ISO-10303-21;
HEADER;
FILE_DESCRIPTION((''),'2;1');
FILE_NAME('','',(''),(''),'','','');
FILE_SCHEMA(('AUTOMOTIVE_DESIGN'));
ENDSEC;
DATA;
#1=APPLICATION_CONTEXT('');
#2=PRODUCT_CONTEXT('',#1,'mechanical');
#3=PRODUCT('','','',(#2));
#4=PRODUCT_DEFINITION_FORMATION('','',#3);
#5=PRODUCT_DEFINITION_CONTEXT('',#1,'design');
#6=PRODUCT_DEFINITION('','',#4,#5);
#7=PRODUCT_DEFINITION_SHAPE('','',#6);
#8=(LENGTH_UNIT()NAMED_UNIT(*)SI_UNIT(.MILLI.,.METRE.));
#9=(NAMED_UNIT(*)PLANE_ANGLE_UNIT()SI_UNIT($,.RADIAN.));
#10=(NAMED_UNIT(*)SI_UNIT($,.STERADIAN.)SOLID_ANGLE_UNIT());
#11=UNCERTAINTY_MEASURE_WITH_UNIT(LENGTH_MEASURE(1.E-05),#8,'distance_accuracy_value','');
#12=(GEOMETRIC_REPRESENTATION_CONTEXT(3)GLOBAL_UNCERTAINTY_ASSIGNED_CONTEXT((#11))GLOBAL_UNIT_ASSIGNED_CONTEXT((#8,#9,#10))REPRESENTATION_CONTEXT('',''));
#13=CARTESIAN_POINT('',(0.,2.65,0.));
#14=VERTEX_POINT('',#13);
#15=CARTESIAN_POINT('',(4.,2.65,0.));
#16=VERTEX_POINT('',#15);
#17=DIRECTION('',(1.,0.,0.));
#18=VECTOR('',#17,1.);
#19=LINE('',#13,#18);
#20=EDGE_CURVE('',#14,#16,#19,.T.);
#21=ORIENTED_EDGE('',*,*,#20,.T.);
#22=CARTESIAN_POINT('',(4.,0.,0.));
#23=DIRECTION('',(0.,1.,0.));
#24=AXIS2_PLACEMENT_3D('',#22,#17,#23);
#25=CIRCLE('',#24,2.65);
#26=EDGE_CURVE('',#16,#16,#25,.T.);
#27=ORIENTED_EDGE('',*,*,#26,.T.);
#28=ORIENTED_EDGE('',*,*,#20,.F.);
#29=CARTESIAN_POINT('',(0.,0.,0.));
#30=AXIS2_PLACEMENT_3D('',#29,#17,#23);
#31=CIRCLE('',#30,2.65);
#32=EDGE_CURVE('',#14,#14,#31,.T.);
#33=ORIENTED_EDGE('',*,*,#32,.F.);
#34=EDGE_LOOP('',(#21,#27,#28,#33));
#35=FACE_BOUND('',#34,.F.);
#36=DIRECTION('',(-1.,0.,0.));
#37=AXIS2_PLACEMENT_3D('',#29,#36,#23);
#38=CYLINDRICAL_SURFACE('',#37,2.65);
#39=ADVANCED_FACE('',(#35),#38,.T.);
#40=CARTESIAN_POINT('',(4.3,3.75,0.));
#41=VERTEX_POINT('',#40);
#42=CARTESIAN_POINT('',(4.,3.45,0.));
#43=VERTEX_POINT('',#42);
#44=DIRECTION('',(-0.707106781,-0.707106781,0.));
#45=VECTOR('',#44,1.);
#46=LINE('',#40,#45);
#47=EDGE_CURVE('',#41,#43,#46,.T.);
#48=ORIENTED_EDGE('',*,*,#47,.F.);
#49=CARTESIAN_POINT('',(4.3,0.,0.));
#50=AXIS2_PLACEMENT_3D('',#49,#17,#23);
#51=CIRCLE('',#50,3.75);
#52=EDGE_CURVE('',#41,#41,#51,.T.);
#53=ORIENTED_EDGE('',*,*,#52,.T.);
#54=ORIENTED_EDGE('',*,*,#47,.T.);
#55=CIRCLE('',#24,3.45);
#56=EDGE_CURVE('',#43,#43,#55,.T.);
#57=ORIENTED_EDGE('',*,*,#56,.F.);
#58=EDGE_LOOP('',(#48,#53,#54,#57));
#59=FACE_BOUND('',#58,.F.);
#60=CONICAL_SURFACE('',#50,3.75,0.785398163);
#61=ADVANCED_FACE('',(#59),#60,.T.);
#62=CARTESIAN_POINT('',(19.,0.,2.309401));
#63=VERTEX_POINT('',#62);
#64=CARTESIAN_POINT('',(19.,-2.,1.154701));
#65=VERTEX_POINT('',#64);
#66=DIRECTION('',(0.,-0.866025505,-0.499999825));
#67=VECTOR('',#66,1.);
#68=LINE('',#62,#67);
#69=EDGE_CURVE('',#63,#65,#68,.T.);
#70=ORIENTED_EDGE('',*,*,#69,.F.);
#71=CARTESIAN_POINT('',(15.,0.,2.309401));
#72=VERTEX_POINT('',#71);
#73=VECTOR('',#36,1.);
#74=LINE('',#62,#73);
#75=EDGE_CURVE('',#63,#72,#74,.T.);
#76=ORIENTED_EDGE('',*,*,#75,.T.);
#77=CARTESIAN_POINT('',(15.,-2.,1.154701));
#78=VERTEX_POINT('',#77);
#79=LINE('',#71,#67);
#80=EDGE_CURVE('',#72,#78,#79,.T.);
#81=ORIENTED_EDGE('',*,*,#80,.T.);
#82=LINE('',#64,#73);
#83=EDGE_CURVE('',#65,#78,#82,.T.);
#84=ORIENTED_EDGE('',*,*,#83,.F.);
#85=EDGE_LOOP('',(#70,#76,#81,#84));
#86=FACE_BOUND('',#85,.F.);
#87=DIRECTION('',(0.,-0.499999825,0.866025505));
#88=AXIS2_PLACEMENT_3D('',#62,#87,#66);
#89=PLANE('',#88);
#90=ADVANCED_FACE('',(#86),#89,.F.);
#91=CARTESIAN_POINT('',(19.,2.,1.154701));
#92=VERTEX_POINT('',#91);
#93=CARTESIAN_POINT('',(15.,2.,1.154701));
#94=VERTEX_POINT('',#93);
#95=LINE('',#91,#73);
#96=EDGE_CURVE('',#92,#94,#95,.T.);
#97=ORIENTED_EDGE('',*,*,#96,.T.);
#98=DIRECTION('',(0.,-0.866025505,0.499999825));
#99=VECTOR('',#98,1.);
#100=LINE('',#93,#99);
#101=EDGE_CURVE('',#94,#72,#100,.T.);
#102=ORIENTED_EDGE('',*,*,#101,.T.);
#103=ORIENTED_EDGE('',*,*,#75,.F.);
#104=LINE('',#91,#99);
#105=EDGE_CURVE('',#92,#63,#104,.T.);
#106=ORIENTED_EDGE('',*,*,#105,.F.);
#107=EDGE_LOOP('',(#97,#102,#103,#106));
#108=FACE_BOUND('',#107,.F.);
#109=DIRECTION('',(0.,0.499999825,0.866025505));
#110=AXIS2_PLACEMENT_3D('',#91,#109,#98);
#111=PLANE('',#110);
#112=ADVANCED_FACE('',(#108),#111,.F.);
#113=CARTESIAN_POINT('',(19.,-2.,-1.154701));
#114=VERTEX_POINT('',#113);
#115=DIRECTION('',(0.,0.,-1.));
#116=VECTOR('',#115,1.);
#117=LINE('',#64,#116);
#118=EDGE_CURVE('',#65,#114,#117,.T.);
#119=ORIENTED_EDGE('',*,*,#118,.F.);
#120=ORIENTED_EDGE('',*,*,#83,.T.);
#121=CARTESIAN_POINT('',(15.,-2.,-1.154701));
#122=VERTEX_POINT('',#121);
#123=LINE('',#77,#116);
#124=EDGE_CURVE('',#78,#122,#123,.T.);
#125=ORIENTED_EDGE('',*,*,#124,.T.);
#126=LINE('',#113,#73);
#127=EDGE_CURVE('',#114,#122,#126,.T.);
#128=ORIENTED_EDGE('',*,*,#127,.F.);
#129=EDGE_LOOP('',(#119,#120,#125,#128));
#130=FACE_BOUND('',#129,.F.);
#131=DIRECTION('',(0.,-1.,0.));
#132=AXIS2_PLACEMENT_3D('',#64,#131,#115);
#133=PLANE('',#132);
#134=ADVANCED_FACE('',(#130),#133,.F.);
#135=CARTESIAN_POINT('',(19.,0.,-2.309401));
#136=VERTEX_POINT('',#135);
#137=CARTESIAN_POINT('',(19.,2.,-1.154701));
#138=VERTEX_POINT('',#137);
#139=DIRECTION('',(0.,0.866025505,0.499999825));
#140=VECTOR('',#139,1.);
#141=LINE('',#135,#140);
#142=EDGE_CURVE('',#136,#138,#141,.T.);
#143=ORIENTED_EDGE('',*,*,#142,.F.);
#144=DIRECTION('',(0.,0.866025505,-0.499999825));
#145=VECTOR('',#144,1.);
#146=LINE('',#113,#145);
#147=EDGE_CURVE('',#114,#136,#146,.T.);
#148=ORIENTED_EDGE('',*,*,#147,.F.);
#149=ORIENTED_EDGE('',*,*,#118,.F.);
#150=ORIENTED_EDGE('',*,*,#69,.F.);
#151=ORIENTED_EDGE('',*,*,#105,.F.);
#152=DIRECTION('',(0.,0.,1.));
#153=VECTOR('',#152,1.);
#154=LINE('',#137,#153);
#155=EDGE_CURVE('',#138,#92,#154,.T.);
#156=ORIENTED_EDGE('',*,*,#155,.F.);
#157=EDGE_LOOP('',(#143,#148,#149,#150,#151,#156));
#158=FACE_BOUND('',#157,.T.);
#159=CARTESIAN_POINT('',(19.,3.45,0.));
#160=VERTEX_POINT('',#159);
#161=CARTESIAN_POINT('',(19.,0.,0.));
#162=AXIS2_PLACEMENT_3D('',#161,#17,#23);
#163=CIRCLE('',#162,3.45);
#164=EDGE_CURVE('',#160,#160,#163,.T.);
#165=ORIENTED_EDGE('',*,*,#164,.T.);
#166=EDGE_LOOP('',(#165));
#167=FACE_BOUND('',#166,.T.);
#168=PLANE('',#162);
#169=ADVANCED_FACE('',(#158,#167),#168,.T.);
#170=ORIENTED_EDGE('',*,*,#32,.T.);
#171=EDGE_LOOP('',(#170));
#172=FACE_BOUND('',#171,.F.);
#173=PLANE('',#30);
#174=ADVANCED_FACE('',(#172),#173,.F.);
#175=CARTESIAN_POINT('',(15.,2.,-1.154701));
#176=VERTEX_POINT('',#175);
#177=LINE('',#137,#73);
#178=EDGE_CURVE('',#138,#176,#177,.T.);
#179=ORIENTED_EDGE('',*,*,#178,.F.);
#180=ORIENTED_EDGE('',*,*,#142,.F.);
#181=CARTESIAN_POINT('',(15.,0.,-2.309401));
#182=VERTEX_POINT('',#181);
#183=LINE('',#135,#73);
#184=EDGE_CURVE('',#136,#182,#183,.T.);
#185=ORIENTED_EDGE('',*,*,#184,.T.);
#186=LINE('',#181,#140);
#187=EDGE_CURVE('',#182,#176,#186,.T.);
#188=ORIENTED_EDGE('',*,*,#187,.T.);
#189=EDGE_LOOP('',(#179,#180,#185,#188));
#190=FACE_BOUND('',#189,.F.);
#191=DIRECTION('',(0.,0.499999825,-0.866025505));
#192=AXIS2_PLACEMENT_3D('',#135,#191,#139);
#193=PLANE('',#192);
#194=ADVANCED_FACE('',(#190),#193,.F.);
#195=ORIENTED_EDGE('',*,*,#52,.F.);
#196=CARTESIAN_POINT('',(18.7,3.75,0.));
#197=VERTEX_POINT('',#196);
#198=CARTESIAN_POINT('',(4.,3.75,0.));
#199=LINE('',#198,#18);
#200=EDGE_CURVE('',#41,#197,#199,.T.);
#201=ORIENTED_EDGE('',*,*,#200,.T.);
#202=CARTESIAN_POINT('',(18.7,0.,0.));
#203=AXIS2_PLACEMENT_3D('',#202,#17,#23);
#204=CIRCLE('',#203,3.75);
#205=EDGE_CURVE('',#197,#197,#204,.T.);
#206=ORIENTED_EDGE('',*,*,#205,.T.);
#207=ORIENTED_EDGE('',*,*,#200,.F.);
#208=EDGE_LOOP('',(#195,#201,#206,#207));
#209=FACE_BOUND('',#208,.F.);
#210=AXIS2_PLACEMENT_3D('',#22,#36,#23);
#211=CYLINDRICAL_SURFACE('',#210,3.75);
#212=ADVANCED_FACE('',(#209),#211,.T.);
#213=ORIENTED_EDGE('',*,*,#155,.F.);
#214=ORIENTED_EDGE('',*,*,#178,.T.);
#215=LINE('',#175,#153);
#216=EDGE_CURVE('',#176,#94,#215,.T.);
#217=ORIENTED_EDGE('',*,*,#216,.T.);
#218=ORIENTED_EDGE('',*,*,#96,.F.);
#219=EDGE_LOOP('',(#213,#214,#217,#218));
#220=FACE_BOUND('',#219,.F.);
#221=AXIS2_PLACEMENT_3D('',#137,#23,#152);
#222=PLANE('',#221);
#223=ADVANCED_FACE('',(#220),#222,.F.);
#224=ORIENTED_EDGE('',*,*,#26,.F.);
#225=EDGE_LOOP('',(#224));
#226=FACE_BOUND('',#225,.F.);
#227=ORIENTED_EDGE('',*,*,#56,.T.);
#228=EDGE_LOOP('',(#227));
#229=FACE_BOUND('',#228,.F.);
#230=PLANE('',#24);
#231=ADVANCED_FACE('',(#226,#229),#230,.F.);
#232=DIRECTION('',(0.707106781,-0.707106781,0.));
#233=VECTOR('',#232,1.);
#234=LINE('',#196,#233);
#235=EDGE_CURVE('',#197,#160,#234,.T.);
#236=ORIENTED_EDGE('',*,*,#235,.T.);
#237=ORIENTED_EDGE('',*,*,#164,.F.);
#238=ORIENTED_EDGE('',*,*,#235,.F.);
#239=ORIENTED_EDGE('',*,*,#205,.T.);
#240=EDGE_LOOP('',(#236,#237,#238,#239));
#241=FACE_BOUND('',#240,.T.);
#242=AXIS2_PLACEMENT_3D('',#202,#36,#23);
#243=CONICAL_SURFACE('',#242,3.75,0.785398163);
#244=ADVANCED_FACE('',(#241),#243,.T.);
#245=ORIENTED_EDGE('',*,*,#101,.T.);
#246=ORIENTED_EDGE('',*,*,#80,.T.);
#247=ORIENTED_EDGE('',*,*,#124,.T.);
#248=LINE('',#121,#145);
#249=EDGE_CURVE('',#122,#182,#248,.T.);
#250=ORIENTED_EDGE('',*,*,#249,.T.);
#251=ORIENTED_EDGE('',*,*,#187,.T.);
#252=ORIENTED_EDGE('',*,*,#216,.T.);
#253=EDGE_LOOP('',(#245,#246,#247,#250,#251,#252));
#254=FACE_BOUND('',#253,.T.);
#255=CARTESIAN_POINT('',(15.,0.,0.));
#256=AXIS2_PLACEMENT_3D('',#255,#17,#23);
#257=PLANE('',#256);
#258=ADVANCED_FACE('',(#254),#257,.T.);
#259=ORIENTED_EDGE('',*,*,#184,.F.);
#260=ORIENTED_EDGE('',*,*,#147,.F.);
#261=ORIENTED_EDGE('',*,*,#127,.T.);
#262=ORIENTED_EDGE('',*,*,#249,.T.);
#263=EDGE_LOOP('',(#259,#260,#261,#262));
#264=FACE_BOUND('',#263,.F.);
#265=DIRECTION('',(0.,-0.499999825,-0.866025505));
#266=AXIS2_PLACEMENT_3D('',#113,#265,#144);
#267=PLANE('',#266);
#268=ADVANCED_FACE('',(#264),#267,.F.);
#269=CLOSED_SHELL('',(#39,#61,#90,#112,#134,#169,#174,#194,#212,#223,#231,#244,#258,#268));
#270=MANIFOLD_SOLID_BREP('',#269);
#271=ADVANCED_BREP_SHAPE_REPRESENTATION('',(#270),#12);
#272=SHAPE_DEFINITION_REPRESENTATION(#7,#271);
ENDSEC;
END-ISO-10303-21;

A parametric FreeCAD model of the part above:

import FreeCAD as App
import Part
import Sketcher

V = App.Vector
Q = App.Units.Quantity


def edges_at(feature, points):
    """Names of the edges that pass closest to the given points."""
    edges = feature.Shape.Edges
    near = lambda p: min(range(len(edges)), key=lambda i: edges[i].distToShape(Part.Vertex(*p))[0])
    return sorted({f"Edge{near(p) + 1}" for p in points})

doc = App.newDocument("Part")
body = doc.addObject("PartDesign::Body", "Body")

sketch1 = doc.addObject("Sketcher::SketchObject", "Sketch")
body.addObject(sketch1)
sketch1.AttachmentSupport = (doc.YZ_Plane, [""])
sketch1.MapMode = "FlatFace"
sketch1.addGeometry(Part.Circle(V(0, 0, 0), V(0, 0, 1), 2.6), False)
sketch1.addConstraint(Sketcher.Constraint("Coincident", 0, 3, -1, 1))
sketch1.addConstraint(Sketcher.Constraint("Diameter", 0, Q("5.3 mm")))
pad1 = doc.addObject("PartDesign::Pad", "Pad")
body.addObject(pad1)
pad1.Profile = sketch1
pad1.Length = 4

sketch2 = doc.addObject("Sketcher::SketchObject", "Sketch001")
body.addObject(sketch2)
sketch2.AttachmentSupport = (doc.YZ_Plane, [""])
sketch2.MapMode = "FlatFace"
sketch2.AttachmentOffset = App.Placement(V(0, 0, 4), App.Rotation())
sketch2.addGeometry(Part.Circle(V(0, 0, 0), V(0, 0, 1), 3.8), False)
sketch2.addConstraint(Sketcher.Constraint("Coincident", 0, 3, -1, 1))
sketch2.addConstraint(Sketcher.Constraint("Diameter", 0, Q("7.5 mm")))
pad2 = doc.addObject("PartDesign::Pad", "Pad001")
body.addObject(pad2)
pad2.Profile = sketch2
pad2.Length = 15

sketch3 = doc.addObject("Sketcher::SketchObject", "Sketch002")
body.addObject(sketch3)
sketch3.AttachmentSupport = (doc.YZ_Plane, [""])
sketch3.MapMode = "FlatFace"
sketch3.AttachmentOffset = App.Placement(V(0, 0, 19), App.Rotation())
sketch3.addGeometry(Part.LineSegment(V(2, -1.2, 0), V(2, 1.2, 0)), False)
sketch3.addGeometry(Part.LineSegment(V(2, 1.2, 0), V(0, 2.3, 0)), False)
sketch3.addGeometry(Part.LineSegment(V(0, 2.3, 0), V(-2, 1.2, 0)), False)
sketch3.addGeometry(Part.LineSegment(V(-2, 1.2, 0), V(-2, -1.2, 0)), False)
sketch3.addGeometry(Part.LineSegment(V(-2, -1.2, 0), V(0, -2.3, 0)), False)
sketch3.addGeometry(Part.LineSegment(V(0, -2.3, 0), V(2, -1.2, 0)), False)
sketch3.addConstraint(Sketcher.Constraint("Coincident", 0, 2, 1, 1))
sketch3.addConstraint(Sketcher.Constraint("Coincident", 1, 2, 2, 1))
sketch3.addConstraint(Sketcher.Constraint("Coincident", 2, 2, 3, 1))
sketch3.addConstraint(Sketcher.Constraint("Coincident", 3, 2, 4, 1))
sketch3.addConstraint(Sketcher.Constraint("Coincident", 4, 2, 5, 1))
sketch3.addConstraint(Sketcher.Constraint("Coincident", 5, 2, 0, 1))
sketch3.addConstraint(Sketcher.Constraint("Vertical", 0))
sketch3.addConstraint(Sketcher.Constraint("Vertical", 3))
sketch3.addConstraint(Sketcher.Constraint("Symmetric", 0, 2, 3, 2, -1, 1))
sketch3.addConstraint(Sketcher.Constraint("Symmetric", 1, 2, 4, 2, -1, 1))
sketch3.addConstraint(Sketcher.Constraint("PointOnObject", 1, 2, -2))
sketch3.addConstraint(Sketcher.Constraint("Parallel", 2, 5))
sketch3.addConstraint(Sketcher.Constraint("Horizontal", 0, 2, 2, 2))
sketch3.addConstraint(Sketcher.Constraint("Angle", 1, Q("150.000012 deg")))
sketch3.addConstraint(Sketcher.Constraint("DistanceX", -1, 1, 0, 2, Q("2 mm")))
sketch3.addConstraint(Sketcher.Constraint("DistanceY", 0, 1, 0, 2, Q("2.309402 mm")))
pocket1 = doc.addObject("PartDesign::Pocket", "Pocket")
body.addObject(pocket1)
pocket1.Profile = sketch3
pocket1.Length = 4
doc.recompute()

chamfer = doc.addObject("PartDesign::Chamfer", "Chamfer")
body.addObject(chamfer)
chamfer.Base = (pocket1, edges_at(pocket1, [(19, -3.75, 0), (4, -3.75, 0)]))
chamfer.Size = 0.3

doc.recompute()
